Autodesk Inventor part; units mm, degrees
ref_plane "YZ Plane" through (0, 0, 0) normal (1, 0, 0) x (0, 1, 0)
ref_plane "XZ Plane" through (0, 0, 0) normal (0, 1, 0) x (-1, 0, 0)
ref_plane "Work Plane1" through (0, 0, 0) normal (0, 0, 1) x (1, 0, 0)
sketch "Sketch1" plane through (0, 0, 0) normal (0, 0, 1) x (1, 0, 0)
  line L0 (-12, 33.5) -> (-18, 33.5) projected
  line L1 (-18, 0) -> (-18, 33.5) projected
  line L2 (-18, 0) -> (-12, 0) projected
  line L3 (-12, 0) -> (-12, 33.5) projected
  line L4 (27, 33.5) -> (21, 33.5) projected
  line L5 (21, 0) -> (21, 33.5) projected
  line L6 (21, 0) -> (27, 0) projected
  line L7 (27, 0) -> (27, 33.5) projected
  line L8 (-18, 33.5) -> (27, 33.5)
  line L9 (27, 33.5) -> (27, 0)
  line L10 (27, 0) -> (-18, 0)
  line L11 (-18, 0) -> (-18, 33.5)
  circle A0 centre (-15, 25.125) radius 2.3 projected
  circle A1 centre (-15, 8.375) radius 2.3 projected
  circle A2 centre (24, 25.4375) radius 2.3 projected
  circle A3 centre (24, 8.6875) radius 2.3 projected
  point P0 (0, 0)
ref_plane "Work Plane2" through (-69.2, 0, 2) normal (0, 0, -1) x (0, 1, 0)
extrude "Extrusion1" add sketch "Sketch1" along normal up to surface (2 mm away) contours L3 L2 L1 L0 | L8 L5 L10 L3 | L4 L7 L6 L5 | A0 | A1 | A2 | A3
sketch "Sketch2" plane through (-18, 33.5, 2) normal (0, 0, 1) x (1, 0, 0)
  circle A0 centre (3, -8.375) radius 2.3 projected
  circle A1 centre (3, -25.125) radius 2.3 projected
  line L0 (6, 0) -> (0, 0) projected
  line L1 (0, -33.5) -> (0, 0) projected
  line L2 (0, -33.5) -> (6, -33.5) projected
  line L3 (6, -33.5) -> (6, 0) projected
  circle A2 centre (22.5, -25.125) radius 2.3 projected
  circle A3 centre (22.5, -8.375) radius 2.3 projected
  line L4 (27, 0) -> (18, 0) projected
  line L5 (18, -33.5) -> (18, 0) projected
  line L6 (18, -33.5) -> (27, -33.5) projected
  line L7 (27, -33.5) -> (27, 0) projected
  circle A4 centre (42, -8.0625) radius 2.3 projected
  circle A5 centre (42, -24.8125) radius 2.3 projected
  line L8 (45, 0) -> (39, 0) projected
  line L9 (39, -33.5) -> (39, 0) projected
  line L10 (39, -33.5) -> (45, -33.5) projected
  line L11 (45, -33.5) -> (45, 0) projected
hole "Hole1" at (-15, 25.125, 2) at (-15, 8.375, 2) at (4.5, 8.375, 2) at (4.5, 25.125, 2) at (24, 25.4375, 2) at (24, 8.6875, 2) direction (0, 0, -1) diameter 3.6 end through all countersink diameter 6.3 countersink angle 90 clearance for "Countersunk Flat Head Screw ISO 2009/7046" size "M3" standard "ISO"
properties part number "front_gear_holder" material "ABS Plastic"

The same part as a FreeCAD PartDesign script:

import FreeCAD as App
import Part
import Sketcher
Q = App.Units.Quantity

doc = App.newDocument("Part")
body = doc.addObject("PartDesign::Body", "Body")

sketch1 = doc.addObject("Sketcher::SketchObject", "Sketch")
body.addObject(sketch1)
sketch1.AttachmentSupport = (doc.XY_Plane, [""])
sketch1.MapMode = "FlatFace"
sketch1.addGeometry([
    Part.LineSegment(App.Vector(-18, 0, 0), App.Vector(27, 0, 0)),
    Part.LineSegment(App.Vector(27, 0, 0), App.Vector(27, 34, 0)),
    Part.LineSegment(App.Vector(27, 34, 0), App.Vector(-18, 34, 0)),
    Part.LineSegment(App.Vector(-18, 34, 0), App.Vector(-18, 0, 0)),
], False)
sketch1.addConstraint([
    Sketcher.Constraint("Coincident", 0, 2, 1, 1),
    Sketcher.Constraint("Coincident", 1, 2, 2, 1),
    Sketcher.Constraint("Coincident", 2, 2, 3, 1),
    Sketcher.Constraint("Coincident", 3, 2, 0, 1),
    Sketcher.Constraint("Horizontal", 0),
    Sketcher.Constraint("Vertical", 1),
    Sketcher.Constraint("Horizontal", 2),
    Sketcher.Constraint("Vertical", 3),
    Sketcher.Constraint("PointOnObject", 0, 2, -1),
    Sketcher.Constraint("DistanceX", 0, 1, 0, 2, Q("45 mm")),
    Sketcher.Constraint("DistanceY", 1, 1, 1, 2, Q("33.5 mm")),
    Sketcher.Constraint("DistanceX", -1, 1, 0, 2, Q("27 mm")),
])
pad1 = doc.addObject("PartDesign::Pad", "Pad")
body.addObject(pad1)
pad1.Profile = sketch1
pad1.Length = 2

sketch2 = doc.addObject("Sketcher::SketchObject", "Sketch001")
body.addObject(sketch2)
sketch2.AttachmentSupport = (doc.XY_Plane, [""])
sketch2.MapMode = "FlatFace"
sketch2.AttachmentOffset = App.Placement(App.Vector(0, 0, 2), App.Rotation())
sketch2.addGeometry([
    Part.Circle(App.Vector(-15, 25.1, 0), App.Vector(0, 0, 1), 1.8),
    Part.Circle(App.Vector(-15, 8.4, 0), App.Vector(0, 0, 1), 1.8),
    Part.Circle(App.Vector(4.5, 8.4, 0), App.Vector(0, 0, 1), 1.8),
    Part.Circle(App.Vector(4.5, 25.1, 0), App.Vector(0, 0, 1), 1.8),
    Part.Circle(App.Vector(24, 25.4, 0), App.Vector(0, 0, 1), 1.8),
    Part.Circle(App.Vector(24, 8.7, 0), App.Vector(0, 0, 1), 1.8),
], False)
sketch2.addConstraint([
    Sketcher.Constraint("Equal", 0, 1),
    Sketcher.Constraint("Equal", 1, 2),
    Sketcher.Constraint("Equal", 2, 3),
    Sketcher.Constraint("Equal", 3, 4),
    Sketcher.Constraint("Equal", 4, 5),
    Sketcher.Constraint("Horizontal", 1, 3, 2, 3),
    Sketcher.Constraint("Horizontal", 0, 3, 3, 3),
    Sketcher.Constraint("Vertical", 0, 3, 1, 3),
    Sketcher.Constraint("Vertical", 2, 3, 3, 3),
    Sketcher.Constraint("Vertical", 4, 3, 5, 3),
    Sketcher.Constraint("Diameter", 0, Q("3.6 mm")),
    Sketcher.Constraint("DistanceX", 0, 3, -1, 1, Q("15 mm")),
    Sketcher.Constraint("DistanceX", -1, 1, 4, 3, Q("24 mm")),
    Sketcher.Constraint("DistanceX", -1, 1, 2, 3, Q("4.5 mm")),
    Sketcher.Constraint("DistanceY", 1, 3, 0, 3, Q("16.75 mm")),
    Sketcher.Constraint("DistanceY", 5, 3, 4, 3, Q("16.75 mm")),
    Sketcher.Constraint("DistanceY", -1, 1, 0, 3, Q("25.125 mm")),
    Sketcher.Constraint("DistanceY", -1, 1, 4, 3, Q("25.4375 mm")),
])
doc.recompute()
hole = doc.addObject("PartDesign::Hole", "Hole")
body.addObject(hole)
hole.Profile = sketch2
hole.ThreadType = "None"
hole.Diameter = 3.6
hole.DepthType = "ThroughAll"
hole.HoleCutType = "Countersink"
hole.HoleCutDiameter = 6.3
hole.HoleCutCountersinkAngle = 90

doc.recompute()
